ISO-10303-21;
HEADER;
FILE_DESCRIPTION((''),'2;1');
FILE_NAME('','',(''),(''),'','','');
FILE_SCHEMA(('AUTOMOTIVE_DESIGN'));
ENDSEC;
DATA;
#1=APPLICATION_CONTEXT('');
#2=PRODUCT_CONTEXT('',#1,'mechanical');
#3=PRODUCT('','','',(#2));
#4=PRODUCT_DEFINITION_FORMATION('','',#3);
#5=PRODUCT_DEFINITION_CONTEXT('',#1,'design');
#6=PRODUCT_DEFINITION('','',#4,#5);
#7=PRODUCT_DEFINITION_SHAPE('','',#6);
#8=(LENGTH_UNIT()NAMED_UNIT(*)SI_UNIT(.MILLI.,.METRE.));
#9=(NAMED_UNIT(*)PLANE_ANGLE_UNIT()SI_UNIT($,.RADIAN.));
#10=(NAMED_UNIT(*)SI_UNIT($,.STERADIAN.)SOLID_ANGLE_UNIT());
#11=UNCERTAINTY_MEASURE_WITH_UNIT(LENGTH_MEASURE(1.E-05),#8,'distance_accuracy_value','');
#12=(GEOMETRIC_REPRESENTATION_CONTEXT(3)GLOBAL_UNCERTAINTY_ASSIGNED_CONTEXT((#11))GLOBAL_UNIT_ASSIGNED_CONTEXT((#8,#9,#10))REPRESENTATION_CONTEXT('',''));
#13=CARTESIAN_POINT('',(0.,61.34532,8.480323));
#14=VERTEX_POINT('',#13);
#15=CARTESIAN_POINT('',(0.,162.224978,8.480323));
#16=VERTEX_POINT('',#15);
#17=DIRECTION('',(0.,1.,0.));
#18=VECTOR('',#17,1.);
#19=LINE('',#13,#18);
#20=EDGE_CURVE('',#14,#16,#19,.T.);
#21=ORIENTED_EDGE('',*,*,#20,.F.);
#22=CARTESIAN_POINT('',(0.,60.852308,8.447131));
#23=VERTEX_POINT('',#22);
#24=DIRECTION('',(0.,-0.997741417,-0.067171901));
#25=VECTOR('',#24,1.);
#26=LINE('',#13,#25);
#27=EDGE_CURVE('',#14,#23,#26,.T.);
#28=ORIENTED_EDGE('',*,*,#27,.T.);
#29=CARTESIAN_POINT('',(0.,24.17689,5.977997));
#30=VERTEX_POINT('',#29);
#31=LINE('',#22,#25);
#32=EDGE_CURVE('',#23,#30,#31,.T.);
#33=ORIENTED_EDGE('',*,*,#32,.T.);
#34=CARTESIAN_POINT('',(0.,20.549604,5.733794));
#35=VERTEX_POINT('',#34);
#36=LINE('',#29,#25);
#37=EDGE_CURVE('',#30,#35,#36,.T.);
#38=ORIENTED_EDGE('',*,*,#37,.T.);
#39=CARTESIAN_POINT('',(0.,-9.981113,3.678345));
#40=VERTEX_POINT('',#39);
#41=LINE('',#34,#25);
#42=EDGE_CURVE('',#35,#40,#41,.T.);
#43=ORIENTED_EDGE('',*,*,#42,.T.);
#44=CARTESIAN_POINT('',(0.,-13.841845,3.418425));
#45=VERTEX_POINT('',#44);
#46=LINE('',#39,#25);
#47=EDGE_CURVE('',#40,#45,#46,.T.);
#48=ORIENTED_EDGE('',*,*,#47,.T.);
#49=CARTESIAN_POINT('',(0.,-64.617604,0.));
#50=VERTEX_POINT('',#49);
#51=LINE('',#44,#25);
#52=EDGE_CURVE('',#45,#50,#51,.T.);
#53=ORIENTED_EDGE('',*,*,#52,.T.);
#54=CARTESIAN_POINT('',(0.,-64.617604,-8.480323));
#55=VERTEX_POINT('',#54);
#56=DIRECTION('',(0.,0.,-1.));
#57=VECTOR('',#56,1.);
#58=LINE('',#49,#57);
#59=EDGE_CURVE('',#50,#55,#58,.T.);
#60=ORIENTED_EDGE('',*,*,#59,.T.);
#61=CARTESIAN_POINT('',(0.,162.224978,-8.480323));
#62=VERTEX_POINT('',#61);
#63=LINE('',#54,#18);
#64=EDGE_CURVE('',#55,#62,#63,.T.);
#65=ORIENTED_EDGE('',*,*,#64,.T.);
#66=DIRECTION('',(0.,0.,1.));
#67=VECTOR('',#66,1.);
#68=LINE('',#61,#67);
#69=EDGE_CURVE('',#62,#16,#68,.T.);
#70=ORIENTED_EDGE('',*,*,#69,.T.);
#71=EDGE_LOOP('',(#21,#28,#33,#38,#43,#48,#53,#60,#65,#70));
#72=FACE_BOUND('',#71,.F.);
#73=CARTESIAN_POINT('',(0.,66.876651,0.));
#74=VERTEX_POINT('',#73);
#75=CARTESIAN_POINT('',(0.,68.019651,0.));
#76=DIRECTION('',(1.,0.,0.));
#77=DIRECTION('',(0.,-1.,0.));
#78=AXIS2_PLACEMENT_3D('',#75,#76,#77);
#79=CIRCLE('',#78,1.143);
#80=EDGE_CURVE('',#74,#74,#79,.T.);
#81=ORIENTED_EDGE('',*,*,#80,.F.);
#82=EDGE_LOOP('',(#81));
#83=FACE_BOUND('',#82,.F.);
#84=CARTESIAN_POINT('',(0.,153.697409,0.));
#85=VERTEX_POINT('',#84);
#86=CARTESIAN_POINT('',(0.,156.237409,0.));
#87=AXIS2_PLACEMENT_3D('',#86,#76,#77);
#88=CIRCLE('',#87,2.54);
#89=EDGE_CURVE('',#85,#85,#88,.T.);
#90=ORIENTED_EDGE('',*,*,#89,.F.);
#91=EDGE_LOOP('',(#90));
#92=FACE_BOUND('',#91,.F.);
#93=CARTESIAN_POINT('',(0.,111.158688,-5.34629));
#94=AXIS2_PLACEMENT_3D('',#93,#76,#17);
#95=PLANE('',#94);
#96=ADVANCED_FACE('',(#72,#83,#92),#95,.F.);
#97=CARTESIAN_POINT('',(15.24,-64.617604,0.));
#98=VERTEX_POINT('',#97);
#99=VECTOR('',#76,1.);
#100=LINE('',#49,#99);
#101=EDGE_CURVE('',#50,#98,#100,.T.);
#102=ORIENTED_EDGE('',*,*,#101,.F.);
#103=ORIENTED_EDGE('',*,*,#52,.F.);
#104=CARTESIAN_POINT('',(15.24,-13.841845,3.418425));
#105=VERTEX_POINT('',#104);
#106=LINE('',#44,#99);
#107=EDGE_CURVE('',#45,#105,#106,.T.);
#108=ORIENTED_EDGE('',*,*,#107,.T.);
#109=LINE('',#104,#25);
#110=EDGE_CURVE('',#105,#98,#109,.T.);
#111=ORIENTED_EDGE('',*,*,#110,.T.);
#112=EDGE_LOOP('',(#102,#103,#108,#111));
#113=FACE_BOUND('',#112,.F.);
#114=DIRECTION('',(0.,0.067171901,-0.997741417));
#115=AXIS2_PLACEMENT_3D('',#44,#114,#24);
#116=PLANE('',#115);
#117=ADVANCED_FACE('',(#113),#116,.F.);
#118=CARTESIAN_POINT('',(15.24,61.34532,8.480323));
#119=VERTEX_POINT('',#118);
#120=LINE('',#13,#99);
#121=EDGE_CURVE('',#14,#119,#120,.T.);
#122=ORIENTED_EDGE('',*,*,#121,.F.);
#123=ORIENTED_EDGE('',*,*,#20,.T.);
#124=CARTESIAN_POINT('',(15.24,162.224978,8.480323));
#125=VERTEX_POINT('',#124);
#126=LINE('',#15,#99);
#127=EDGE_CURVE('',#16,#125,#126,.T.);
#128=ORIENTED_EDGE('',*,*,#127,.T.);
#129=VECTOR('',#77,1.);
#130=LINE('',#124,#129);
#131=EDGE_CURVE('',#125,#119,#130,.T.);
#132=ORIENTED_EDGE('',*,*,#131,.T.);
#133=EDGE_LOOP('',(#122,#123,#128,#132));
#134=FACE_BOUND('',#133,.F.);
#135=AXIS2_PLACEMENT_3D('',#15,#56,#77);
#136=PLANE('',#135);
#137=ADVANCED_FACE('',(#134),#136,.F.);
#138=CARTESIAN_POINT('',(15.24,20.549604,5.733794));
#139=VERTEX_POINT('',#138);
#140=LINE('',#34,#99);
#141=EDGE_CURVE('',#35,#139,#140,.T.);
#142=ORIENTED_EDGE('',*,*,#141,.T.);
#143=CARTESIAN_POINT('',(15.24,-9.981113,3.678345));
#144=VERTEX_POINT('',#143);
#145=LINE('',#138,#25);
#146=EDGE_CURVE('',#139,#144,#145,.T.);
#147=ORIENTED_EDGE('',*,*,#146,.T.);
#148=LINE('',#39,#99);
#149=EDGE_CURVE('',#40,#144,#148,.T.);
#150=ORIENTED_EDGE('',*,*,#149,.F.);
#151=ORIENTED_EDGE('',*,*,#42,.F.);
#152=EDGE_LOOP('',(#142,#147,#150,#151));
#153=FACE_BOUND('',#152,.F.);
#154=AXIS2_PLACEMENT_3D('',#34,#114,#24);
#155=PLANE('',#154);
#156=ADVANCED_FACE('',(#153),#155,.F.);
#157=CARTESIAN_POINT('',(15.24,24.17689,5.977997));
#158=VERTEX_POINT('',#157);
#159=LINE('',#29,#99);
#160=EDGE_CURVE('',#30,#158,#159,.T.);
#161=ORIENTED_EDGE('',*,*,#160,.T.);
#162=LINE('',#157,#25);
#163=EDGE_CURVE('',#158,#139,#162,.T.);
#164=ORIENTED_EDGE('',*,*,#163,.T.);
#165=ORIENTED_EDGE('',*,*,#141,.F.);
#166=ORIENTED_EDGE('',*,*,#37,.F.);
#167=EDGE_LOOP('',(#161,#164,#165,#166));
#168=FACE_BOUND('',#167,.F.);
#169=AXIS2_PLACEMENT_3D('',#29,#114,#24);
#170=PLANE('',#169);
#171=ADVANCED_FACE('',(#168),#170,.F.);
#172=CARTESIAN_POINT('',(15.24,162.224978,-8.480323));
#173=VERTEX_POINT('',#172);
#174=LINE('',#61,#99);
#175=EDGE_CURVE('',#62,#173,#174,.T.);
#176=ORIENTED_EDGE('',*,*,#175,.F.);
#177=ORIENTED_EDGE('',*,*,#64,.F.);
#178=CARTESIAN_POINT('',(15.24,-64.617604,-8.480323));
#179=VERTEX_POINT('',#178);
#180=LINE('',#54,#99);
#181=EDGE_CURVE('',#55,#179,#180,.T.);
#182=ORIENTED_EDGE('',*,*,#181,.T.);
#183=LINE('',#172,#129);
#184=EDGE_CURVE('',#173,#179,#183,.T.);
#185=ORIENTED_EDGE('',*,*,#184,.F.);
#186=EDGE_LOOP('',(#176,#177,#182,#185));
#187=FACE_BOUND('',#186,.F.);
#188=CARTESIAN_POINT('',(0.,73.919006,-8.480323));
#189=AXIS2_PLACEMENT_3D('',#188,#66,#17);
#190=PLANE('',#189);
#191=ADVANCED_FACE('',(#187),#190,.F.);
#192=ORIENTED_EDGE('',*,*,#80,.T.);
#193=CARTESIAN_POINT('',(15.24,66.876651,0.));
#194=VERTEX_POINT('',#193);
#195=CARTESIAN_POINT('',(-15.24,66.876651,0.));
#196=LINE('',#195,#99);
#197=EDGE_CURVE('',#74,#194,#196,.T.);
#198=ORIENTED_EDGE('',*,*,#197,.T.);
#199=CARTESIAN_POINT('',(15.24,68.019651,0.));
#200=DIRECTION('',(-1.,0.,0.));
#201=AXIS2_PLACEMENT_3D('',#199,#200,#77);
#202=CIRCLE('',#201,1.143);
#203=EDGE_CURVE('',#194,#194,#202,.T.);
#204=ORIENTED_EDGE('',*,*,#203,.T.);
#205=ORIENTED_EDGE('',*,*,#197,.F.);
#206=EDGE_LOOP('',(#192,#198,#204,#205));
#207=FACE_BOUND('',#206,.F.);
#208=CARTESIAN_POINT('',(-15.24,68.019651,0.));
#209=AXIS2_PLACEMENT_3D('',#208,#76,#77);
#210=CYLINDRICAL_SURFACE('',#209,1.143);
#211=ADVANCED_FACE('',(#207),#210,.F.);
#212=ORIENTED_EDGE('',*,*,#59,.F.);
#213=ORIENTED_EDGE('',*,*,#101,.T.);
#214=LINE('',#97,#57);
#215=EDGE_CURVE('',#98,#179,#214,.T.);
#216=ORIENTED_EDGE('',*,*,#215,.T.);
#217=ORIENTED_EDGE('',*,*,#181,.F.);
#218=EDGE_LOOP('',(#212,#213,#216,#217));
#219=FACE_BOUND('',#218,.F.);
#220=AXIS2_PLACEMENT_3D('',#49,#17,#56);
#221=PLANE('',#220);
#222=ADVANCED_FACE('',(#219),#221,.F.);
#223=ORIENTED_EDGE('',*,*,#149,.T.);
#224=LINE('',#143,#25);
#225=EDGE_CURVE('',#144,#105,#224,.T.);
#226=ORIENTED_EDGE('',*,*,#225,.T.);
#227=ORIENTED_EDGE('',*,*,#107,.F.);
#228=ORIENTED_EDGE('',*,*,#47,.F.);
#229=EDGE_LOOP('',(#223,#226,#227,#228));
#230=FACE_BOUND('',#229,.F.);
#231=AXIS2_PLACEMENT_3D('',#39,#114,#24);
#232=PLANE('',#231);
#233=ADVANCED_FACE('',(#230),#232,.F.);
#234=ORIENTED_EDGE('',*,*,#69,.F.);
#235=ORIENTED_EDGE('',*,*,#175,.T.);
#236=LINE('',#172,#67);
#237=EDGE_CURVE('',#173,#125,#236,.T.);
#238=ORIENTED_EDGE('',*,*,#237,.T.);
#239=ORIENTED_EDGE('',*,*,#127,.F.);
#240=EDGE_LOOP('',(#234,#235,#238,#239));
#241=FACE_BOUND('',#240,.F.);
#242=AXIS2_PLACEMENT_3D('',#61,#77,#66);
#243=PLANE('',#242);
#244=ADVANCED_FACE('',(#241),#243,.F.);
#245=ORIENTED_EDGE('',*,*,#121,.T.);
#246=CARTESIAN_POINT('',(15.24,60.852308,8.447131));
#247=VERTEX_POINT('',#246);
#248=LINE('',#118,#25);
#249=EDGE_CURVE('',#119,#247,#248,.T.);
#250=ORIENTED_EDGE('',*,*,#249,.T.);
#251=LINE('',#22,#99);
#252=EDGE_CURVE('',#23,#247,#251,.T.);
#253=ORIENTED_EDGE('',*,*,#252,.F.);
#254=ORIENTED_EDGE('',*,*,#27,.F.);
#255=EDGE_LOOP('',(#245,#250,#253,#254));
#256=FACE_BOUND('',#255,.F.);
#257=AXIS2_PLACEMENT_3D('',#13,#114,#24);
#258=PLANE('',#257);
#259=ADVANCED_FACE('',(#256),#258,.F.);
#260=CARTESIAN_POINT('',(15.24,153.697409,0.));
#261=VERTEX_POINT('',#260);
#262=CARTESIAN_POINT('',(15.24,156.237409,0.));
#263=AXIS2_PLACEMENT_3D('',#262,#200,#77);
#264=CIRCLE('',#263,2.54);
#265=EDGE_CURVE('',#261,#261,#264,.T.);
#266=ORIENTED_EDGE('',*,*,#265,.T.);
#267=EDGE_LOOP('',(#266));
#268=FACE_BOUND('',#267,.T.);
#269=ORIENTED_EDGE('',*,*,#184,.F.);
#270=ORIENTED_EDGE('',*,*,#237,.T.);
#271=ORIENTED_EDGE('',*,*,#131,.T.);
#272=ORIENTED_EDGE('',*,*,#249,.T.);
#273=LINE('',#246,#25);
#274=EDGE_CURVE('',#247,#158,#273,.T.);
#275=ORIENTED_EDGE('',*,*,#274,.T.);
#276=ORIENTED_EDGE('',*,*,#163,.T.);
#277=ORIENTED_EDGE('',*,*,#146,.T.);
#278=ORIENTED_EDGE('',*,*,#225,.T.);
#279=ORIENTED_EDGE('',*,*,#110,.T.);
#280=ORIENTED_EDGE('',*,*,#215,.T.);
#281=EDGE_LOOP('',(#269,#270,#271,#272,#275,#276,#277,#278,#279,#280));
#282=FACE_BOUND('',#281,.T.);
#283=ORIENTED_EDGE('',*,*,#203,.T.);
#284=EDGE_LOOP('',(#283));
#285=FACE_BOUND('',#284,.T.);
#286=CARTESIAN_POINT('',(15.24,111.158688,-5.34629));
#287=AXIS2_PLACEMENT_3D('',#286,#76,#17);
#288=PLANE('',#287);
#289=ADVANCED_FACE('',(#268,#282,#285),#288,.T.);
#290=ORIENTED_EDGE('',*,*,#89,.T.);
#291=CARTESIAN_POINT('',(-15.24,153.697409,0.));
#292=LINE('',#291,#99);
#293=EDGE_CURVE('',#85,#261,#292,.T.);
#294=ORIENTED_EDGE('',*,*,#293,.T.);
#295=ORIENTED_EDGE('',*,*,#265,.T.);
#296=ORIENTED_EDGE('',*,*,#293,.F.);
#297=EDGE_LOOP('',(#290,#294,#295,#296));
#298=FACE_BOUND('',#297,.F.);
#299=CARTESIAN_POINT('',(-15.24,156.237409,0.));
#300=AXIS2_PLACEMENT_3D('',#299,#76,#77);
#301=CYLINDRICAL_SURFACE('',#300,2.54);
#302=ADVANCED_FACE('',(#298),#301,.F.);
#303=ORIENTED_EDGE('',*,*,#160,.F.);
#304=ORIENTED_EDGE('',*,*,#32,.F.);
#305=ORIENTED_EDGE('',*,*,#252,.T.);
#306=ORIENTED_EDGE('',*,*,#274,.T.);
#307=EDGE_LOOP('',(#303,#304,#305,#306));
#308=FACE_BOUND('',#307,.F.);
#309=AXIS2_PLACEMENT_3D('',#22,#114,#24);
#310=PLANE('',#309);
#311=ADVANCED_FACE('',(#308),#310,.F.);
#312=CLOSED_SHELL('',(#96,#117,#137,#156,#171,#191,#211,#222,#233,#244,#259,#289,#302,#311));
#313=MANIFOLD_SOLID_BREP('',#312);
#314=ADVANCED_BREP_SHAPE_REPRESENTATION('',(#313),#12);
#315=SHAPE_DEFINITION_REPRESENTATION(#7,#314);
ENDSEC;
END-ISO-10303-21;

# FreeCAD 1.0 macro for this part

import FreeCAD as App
import Part
import Sketcher
Q = App.Units.Quantity


def add_polygon(sketch, points):
    """Adds a closed chain of lines whose ends are joined by coincident constraints."""
    first, n = sketch.GeometryCount, len(points)
    for a, b in zip(points, points[1:] + points[:1]):
        sketch.addGeometry(Part.LineSegment(App.Vector(*a, 0), App.Vector(*b, 0)), False)
    for i in range(n):
        sketch.addConstraint(Sketcher.Constraint("Coincident", first + i, 2, first + (i + 1) % n, 1))

doc = App.newDocument("Part")
body = doc.addObject("PartDesign::Body", "Body")

sketch1 = body.newObject("Sketcher::SketchObject", "Sketch")
sketch1.AttachmentSupport = (doc.getObject("YZ_Plane"), [""])
sketch1.MapMode = "FlatFace"
add_polygon(sketch1, [(60.852308, 8.447131), (60.852308, -8.480323), (73.919006, -8.480323), (73.919006, -2.212258), (148.39837, -2.212258), (148.39837, -8.480323), (162.224978, -8.480323), (162.224978, 8.480323), (148.39837, 8.480323), (148.39837, 2.580968), (73.919006, 2.580968), (73.919006, 8.480323), (61.34532, 8.480323)])
sketch1.addConstraint([
    Sketcher.Constraint("Vertical", 0),
    Sketcher.Constraint("Horizontal", 1),
    Sketcher.Constraint("Vertical", 2),
    Sketcher.Constraint("Horizontal", 3),
    Sketcher.Constraint("Vertical", 4),
    Sketcher.Constraint("Horizontal", 5),
    Sketcher.Constraint("Vertical", 6),
    Sketcher.Constraint("Horizontal", 7),
    Sketcher.Constraint("Vertical", 8),
    Sketcher.Constraint("Horizontal", 9),
    Sketcher.Constraint("Vertical", 10),
    Sketcher.Constraint("Horizontal", 11),
    Sketcher.Constraint("Symmetric", 4, 2, 7, 2, -1),
    Sketcher.Constraint("Symmetric", 1, 2, 10, 2, -1),
    Sketcher.Constraint("Horizontal", 1, 2, 4, 2),
    Sketcher.Constraint("DistanceX", 5, 1, 5, 2, Q("13.826609 mm")),
    Sketcher.Constraint("Distance", 12, Q("0.494128 mm")),
    Sketcher.Constraint("DistanceX", 1, 1, 1, 2, Q("13.066698 mm")),
    Sketcher.Constraint("DistanceX", 3, 1, 3, 2, Q("74.479364 mm")),
    Sketcher.Constraint("DistanceX", 11, 2, 11, 1, Q("12.573686 mm")),
    Sketcher.Constraint("DistanceY", 0, 2, 0, 1, Q("16.927454 mm")),
    Sketcher.Constraint("DistanceY", 2, 1, 2, 2, Q("6.268064 mm")),
    Sketcher.Constraint("DistanceY", 8, 2, 8, 1, Q("5.899355 mm")),
    Sketcher.Constraint("DistanceX", -1, 1, 3, 2, Q("148.39837 mm")),
])
pad1 = body.newObject("PartDesign::Pad", "Pad")
pad1.Profile = sketch1
pad1.Length = Q("0.6 in")

sketch2 = body.newObject("Sketcher::SketchObject", "Sketch001")
sketch2.AttachmentSupport = (doc.getObject("YZ_Plane"), [""])
sketch2.MapMode = "FlatFace"
sketch2.addGeometry(Part.Circle(App.Vector(68.019651, 0, 0), App.Vector(0, 0, 1), 1.143), False)
sketch2.addConstraint([
    Sketcher.Constraint("PointOnObject", 0, 3, -1),
    Sketcher.Constraint("Diameter", 0, Q("0.09 in")),
    Sketcher.Constraint("DistanceX", -1, 1, 0, 3, Q("68.019651 mm")),
])
doc.recompute()
hole = body.newObject("PartDesign::Hole", "Hole")
hole.Profile = sketch2
hole.ThreadType = "None"
hole.Diameter = Q("0.09 in")
hole.DepthType = "Dimension"
hole.Depth = Q("0.6 in")
hole.DrillPoint = "Angled"
hole.DrillPointAngle = 118
hole.Reversed = True

sketch3 = body.newObject("Sketcher::SketchObject", "Sketch002")
sketch3.AttachmentSupport = (doc.getObject("YZ_Plane"), [""])
sketch3.MapMode = "FlatFace"
sketch3.addGeometry(Part.Circle(App.Vector(156.237409, 0, 0), App.Vector(0, 0, 1), 2.54), False)
sketch3.addConstraint([
    Sketcher.Constraint("PointOnObject", 0, 3, -1),
    Sketcher.Constraint("Diameter", 0, Q("0.2 in")),
    Sketcher.Constraint("DistanceX", -1, 1, 0, 3, Q("156.237409 mm")),
])
doc.recompute()
hole2 = body.newObject("PartDesign::Hole", "Hole001")
hole2.Profile = sketch3
hole2.ThreadType = "None"
hole2.Diameter = Q("0.2 in")
hole2.DepthType = "Dimension"
hole2.Depth = Q("0.6 in")
hole2.DrillPoint = "Angled"
hole2.DrillPointAngle = 118
hole2.Reversed = True

sketch4 = body.newObject("Sketcher::SketchObject", "Sketch003")
sketch4.AttachmentSupport = (doc.getObject("YZ_Plane"), [""])
sketch4.MapMode = "FlatFace"
add_polygon(sketch4, [(-64.617604, 0), (-64.617604, -8.480323), (60.852308, -8.480323), (60.852308, 8.447131), (24.17689, 5.977997), (20.549604, 5.733794), (-9.981113, 3.678345), (-13.841845, 3.418425)])
sketch4.addConstraint([
    Sketcher.Constraint("Vertical", 0),
    Sketcher.Constraint("Horizontal", 1),
    Sketcher.Constraint("Vertical", 2),
    Sketcher.Constraint("PointOnObject", 7, 2, -1),
    Sketcher.Constraint("Parallel", 3, 4),
    Sketcher.Constraint("Parallel", 4, 5),
    Sketcher.Constraint("Parallel", 5, 6),
    Sketcher.Constraint("Parallel", 6, 7),
    Sketcher.Constraint("DistanceX", 0, 2, -1, 1, Q("2.5440002 in")),
    Sketcher.Constraint("Distance", 7, Q("50.8907 mm")),
    Sketcher.Constraint("DistanceX", 1, 1, 1, 2, Q("125.469912 mm")),
    Sketcher.Constraint("Distance", 3, Q("36.75844 mm")),
    Sketcher.Constraint("Distance", 5, Q("30.599829 mm")),
    Sketcher.Constraint("DistanceY", 0, 2, 0, 1, Q("8.480323 mm")),
    Sketcher.Constraint("DistanceY", 2, 1, 2, 2, Q("16.927454 mm")),
    Sketcher.Constraint("DistanceX", 0, 2, 4, 2, Q("85.167208 mm")),
])
pad2 = body.newObject("PartDesign::Pad", "Pad001")
pad2.Profile = sketch4
pad2.Length = Q("0.6 in")

sketch5 = body.newObject("Sketcher::SketchObject", "Sketch004")
sketch5.AttachmentSupport = (doc.getObject("YZ_Plane"), [""])
sketch5.MapMode = "FlatFace"
add_polygon(sketch5, [(73.919006, -2.212258), (73.919006, -8.480323), (148.39837, -8.480323), (148.39837, -2.212258)])
add_polygon(sketch5, [(73.919006, 8.480323), (73.919006, 2.580968), (148.39837, 2.580968), (148.39837, 8.480323)])
sketch5.addConstraint([
    Sketcher.Constraint("Vertical", 0),
    Sketcher.Constraint("Horizontal", 1),
    Sketcher.Constraint("Vertical", 2),
    Sketcher.Constraint("Horizontal", 3),
    Sketcher.Constraint("Vertical", 4),
    Sketcher.Constraint("Horizontal", 5),
    Sketcher.Constraint("Vertical", 6),
    Sketcher.Constraint("Horizontal", 7),
    Sketcher.Constraint("Symmetric", 1, 2, 6, 2, -1),
    Sketcher.Constraint("Vertical", 3, 2, 4, 2),
    Sketcher.Constraint("DistanceX", 1, 1, 1, 2, Q("74.479364 mm")),
    Sketcher.Constraint("DistanceY", 0, 2, 0, 1, Q("6.268064 mm")),
    Sketcher.Constraint("DistanceY", 4, 2, 4, 1, Q("5.899355 mm")),
    Sketcher.Constraint("DistanceX", -1, 1, 1, 2, Q("148.39837 mm")),
    Sketcher.Constraint("DistanceY", 2, 2, -1, 1, Q("2.212258 mm")),
])
pad3 = body.newObject("PartDesign::Pad", "Pad002")
pad3.Profile = sketch5
pad3.Length = Q("0.6 in")

doc.recompute()
